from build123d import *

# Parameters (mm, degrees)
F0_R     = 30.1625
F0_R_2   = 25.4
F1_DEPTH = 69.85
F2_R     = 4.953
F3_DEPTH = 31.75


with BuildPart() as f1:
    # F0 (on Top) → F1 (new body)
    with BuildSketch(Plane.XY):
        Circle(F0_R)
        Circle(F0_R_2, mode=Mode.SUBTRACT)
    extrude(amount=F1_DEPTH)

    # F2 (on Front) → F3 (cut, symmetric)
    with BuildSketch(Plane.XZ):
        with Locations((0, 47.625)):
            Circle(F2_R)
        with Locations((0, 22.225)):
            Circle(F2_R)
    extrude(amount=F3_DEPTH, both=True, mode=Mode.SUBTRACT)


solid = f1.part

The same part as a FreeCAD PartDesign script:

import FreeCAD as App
import Part
import Sketcher
Q = App.Units.Quantity

doc = App.newDocument("Part")
params = doc.addObject("Spreadsheet::Sheet", "Params")
for row, (alias, value) in enumerate([
    ("sketch1_diameter", "2 in"),
    ("sketch1_diameter2", "2.375 in"),
    ("pad1_length", "2.75 in"),
    ("sketch2_diameter", "0.39 in"),
    ("pocket1_length", "2.5 in"),
], start=1):
    params.set(f"A{row}", alias)
    params.set(f"B{row}", "=" + value)
    params.setAlias(f"B{row}", alias)

body = doc.addObject("PartDesign::Body", "Body")

# Sketch on XY plane
sketch1 = body.newObject("Sketcher::SketchObject", "Sketch")
sketch1.AttachmentSupport = (doc.getObject("XY_Plane"), [""])
sketch1.MapMode = "FlatFace"
sketch1.addGeometry(Part.Circle(App.Vector(0, 0, 0), App.Vector(0, 0, 1), 30), False)
sketch1.addGeometry(Part.Circle(App.Vector(0, 0, 0), App.Vector(0, 0, 1), 25), False)
sketch1.addConstraint(Sketcher.Constraint("Coincident", 0, 3, -1, 1))
sketch1.addConstraint(Sketcher.Constraint("Coincident", 1, 3, -1, 1))
sketch1.addConstraint(Sketcher.Constraint("Diameter", 1, Q("2 in")))
sketch1.addConstraint(Sketcher.Constraint("Diameter", 0, Q("2.375 in")))
sketch1.setExpression("Constraints[2]", "Params.sketch1_diameter")
sketch1.setExpression("Constraints[3]", "Params.sketch1_diameter2")
pad1 = body.newObject("PartDesign::Pad", "Pad")
pad1.Profile = sketch1
pad1.setExpression("Length", "Params.pad1_length")

# Sketch on XZ plane
sketch2 = body.newObject("Sketcher::SketchObject", "Sketch001")
sketch2.AttachmentSupport = (doc.getObject("XZ_Plane"), [""])
sketch2.MapMode = "FlatFace"
sketch2.addGeometry(Part.Circle(App.Vector(0, 47.6, 0), App.Vector(0, 0, 1), 5), False)
sketch2.addGeometry(Part.Circle(App.Vector(0, 22.2, 0), App.Vector(0, 0, 1), 5), False)
sketch2.addConstraint(Sketcher.Constraint("Equal", 0, 1))
sketch2.addConstraint(Sketcher.Constraint("PointOnObject", 0, 3, -2))
sketch2.addConstraint(Sketcher.Constraint("PointOnObject", 1, 3, -2))
sketch2.addConstraint(Sketcher.Constraint("Diameter", 0, Q("0.39 in")))
sketch2.addConstraint(Sketcher.Constraint("DistanceY", 1, 3, 0, 3, Q("1 in")))
sketch2.addConstraint(Sketcher.Constraint("DistanceY", -1, 1, 0, 3, Q("1.875 in")))
sketch2.setExpression("Constraints[3]", "Params.sketch2_diameter")
pocket1 = body.newObject("PartDesign::Pocket", "Pocket")
pocket1.Profile = sketch2
pocket1.setExpression("Length", "Params.pocket1_length")
pocket1.Midplane = True

doc.recompute()
